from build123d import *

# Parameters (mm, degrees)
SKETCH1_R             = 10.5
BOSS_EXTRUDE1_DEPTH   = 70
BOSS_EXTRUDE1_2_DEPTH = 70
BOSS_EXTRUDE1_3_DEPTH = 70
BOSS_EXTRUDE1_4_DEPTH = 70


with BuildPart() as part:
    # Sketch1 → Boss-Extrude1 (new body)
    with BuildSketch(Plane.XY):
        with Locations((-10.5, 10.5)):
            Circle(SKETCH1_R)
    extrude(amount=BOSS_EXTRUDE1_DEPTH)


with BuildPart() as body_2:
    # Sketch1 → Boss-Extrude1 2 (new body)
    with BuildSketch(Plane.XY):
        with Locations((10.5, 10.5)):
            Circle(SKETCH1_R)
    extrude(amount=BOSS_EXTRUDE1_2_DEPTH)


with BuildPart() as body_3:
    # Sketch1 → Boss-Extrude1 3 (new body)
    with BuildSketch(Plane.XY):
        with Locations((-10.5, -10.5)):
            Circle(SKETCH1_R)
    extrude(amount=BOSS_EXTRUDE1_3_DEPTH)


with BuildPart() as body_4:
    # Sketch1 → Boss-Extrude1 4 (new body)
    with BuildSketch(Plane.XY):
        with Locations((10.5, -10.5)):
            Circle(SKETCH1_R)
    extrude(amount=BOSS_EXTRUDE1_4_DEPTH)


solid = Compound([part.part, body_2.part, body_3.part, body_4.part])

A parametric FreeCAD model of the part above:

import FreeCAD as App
import Part
import Sketcher

V = App.Vector

doc = App.newDocument("Part")
body = doc.addObject("PartDesign::Body", "Body")

sketch1 = body.newObject("Sketcher::SketchObject", "Sketch")
sketch1.AttachmentSupport = (doc.getObject("XY_Plane"), [""])
sketch1.MapMode = "FlatFace"
sketch1.addGeometry(Part.Circle(V(-10, 10, 0), V(0, 0, 1), 10), False)
sketch1.addConstraint([
    Sketcher.Constraint("Diameter", 0, 21.0),
    Sketcher.Constraint("DistanceX", 0, 3, -1, 1, 10.5),
    Sketcher.Constraint("DistanceY", -1, 1, 0, 3, 10.5),
])
pad1 = body.newObject("PartDesign::Pad", "Pad")
pad1.Profile = sketch1
pad1.Length = 70
body2 = doc.addObject("PartDesign::Body", "Body001")

sketch2 = body2.newObject("Sketcher::SketchObject", "Sketch001")
sketch2.AttachmentSupport = (doc.getObject("XY_Plane001"), [""])
sketch2.MapMode = "FlatFace"
sketch2.addGeometry(Part.Circle(V(10, 10, 0), V(0, 0, 1), 10), False)
sketch2.addConstraint([
    Sketcher.Constraint("Diameter", 0, 21.0),
    Sketcher.Constraint("DistanceX", -1, 1, 0, 3, 10.5),
    Sketcher.Constraint("DistanceY", -1, 1, 0, 3, 10.5),
])
pad2 = body2.newObject("PartDesign::Pad", "Pad001")
pad2.Profile = sketch2
pad2.Length = 70
body3 = doc.addObject("PartDesign::Body", "Body002")

sketch3 = body3.newObject("Sketcher::SketchObject", "Sketch002")
sketch3.AttachmentSupport = (doc.getObject("XY_Plane002"), [""])
sketch3.MapMode = "FlatFace"
sketch3.addGeometry(Part.Circle(V(-10, -10, 0), V(0, 0, 1), 10), False)
sketch3.addConstraint([
    Sketcher.Constraint("Diameter", 0, 21.0),
    Sketcher.Constraint("DistanceX", 0, 3, -1, 1, 10.5),
    Sketcher.Constraint("DistanceY", 0, 3, -1, 1, 10.5),
])
pad3 = body3.newObject("PartDesign::Pad", "Pad002")
pad3.Profile = sketch3
pad3.Length = 70
body4 = doc.addObject("PartDesign::Body", "Body003")

sketch4 = body4.newObject("Sketcher::SketchObject", "Sketch003")
sketch4.AttachmentSupport = (doc.getObject("XY_Plane003"), [""])
sketch4.MapMode = "FlatFace"
sketch4.addGeometry(Part.Circle(V(10, -10, 0), V(0, 0, 1), 10), False)
sketch4.addConstraint([
    Sketcher.Constraint("Diameter", 0, 21.0),
    Sketcher.Constraint("DistanceX", -1, 1, 0, 3, 10.5),
    Sketcher.Constraint("DistanceY", 0, 3, -1, 1, 10.5),
])
pad4 = body4.newObject("PartDesign::Pad", "Pad003")
pad4.Profile = sketch4
pad4.Length = 70

doc.recompute()
